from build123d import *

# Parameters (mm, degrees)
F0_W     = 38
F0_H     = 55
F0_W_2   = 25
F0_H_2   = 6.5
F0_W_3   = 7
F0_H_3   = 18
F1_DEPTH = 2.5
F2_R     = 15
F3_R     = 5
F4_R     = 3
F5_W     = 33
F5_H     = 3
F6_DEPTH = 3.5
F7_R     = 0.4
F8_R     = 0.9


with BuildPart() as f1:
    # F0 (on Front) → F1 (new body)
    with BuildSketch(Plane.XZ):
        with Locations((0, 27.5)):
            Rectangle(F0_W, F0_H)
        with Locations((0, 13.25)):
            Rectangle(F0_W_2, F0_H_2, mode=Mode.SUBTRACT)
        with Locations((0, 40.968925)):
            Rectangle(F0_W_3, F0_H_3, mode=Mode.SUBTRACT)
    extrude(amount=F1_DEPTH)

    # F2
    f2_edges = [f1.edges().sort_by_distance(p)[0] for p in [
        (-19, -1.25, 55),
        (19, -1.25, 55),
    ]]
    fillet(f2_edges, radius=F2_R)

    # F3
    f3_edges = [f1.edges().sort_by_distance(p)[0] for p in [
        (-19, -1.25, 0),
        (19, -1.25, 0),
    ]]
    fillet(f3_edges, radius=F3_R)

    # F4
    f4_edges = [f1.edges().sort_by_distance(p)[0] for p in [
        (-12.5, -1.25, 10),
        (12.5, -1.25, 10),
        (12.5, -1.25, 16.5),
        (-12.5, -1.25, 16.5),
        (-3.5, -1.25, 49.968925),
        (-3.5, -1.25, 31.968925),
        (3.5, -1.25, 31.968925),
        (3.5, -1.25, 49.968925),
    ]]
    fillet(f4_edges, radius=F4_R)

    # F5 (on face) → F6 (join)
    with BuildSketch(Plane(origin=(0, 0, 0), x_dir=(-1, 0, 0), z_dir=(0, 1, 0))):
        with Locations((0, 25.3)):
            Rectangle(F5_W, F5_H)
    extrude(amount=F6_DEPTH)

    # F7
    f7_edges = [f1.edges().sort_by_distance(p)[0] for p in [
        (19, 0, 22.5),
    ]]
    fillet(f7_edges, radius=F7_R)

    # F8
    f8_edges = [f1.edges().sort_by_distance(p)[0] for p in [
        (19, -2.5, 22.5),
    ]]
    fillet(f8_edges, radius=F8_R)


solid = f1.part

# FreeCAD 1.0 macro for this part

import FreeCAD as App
import Part
import Sketcher
from FreeCAD import Vector


def edges_at(feature, points):
    """Names of the edges that pass closest to the given points."""
    edges = feature.Shape.Edges
    near = lambda p: min(range(len(edges)), key=lambda i: edges[i].distToShape(Part.Vertex(*p))[0])
    return sorted({f"Edge{near(p) + 1}" for p in points})

doc = App.newDocument("Part")
params = doc.addObject("Spreadsheet::Sheet", "Params")
for row, (alias, value) in enumerate([
    ("sketch1_width", "38 mm"),
    ("sketch1_width2", "25 mm"),
    ("sketch1_width3", "7 mm"),
    ("sketch1_height", "55 mm"),
    ("sketch1_height2", "18 mm"),
    ("pad1_length", "2.5 mm"),
    ("fillet_radius", "15 mm"),
    ("fillet2_radius", "5 mm"),
    ("fillet3_radius", "3 mm"),
    ("sketch2_width", "33 mm"),
    ("sketch2_height", "3 mm"),
    ("pad2_length", "3.5 mm"),
    ("fillet4_radius", "0.4 mm"),
    ("fillet5_radius", "0.9 mm"),
], start=1):
    params.set(f"A{row}", alias)
    params.set(f"B{row}", "=" + value)
    params.setAlias(f"B{row}", alias)

body = doc.addObject("PartDesign::Body", "Body")

# Sketch on XZ plane
sketch1 = body.newObject("Sketcher::SketchObject", "Sketch")
sketch1.AttachmentSupport = (doc.getObject("XZ_Plane"), [""])
sketch1.MapMode = "FlatFace"
sketch1.addGeometry([
    Part.LineSegment(Vector(-19, 55, 0), Vector(-19, 0, 0)),  # 0
    Part.LineSegment(Vector(-19, 0, 0), Vector(19, 0, 0)),  # 1
    Part.LineSegment(Vector(19, 0, 0), Vector(19, 55, 0)),  # 2
    Part.LineSegment(Vector(19, 55, 0), Vector(-19, 55, 0)),  # 3
    Part.LineSegment(Vector(12, 10, 0), Vector(-12, 10, 0)),  # 4
    Part.LineSegment(Vector(-12, 10, 0), Vector(-12, 16, 0)),  # 5
    Part.LineSegment(Vector(-12, 16, 0), Vector(12, 16, 0)),  # 6
    Part.LineSegment(Vector(12, 16, 0), Vector(12, 10, 0)),  # 7
    Part.LineSegment(Vector(4, 32, 0), Vector(-4, 32, 0)),  # 8
    Part.LineSegment(Vector(-4, 32, 0), Vector(-4, 50, 0)),  # 9
    Part.LineSegment(Vector(-4, 50, 0), Vector(4, 50, 0)),  # 10
    Part.LineSegment(Vector(4, 50, 0), Vector(4, 32, 0)),  # 11
], False)
sketch1.addConstraint([
    Sketcher.Constraint("Coincident", 0, 2, 1, 1),
    Sketcher.Constraint("Coincident", 1, 2, 2, 1),
    Sketcher.Constraint("Coincident", 2, 2, 3, 1),
    Sketcher.Constraint("Coincident", 3, 2, 0, 1),
    Sketcher.Constraint("Coincident", 4, 2, 5, 1),
    Sketcher.Constraint("Coincident", 5, 2, 6, 1),
    Sketcher.Constraint("Coincident", 6, 2, 7, 1),
    Sketcher.Constraint("Coincident", 7, 2, 4, 1),
    Sketcher.Constraint("Coincident", 8, 2, 9, 1),
    Sketcher.Constraint("Coincident", 9, 2, 10, 1),
    Sketcher.Constraint("Coincident", 10, 2, 11, 1),
    Sketcher.Constraint("Coincident", 11, 2, 8, 1),
    Sketcher.Constraint("Vertical", 0),
    Sketcher.Constraint("Horizontal", 1),
    Sketcher.Constraint("Vertical", 2),
    Sketcher.Constraint("Horizontal", 3),
    Sketcher.Constraint("Horizontal", 4),
    Sketcher.Constraint("Vertical", 5),
    Sketcher.Constraint("Horizontal", 6),
    Sketcher.Constraint("Vertical", 7),
    Sketcher.Constraint("Horizontal", 8),
    Sketcher.Constraint("Vertical", 9),
    Sketcher.Constraint("Horizontal", 10),
    Sketcher.Constraint("Vertical", 11),
    Sketcher.Constraint("Symmetric", 0, 2, 1, 2, -1, 1),
    Sketcher.Constraint("DistanceX", 1, 1, 1, 2, 38.0),
    Sketcher.Constraint("DistanceX", 4, 2, 4, 1, 25.0),
    Sketcher.Constraint("DistanceX", 8, 2, 8, 1, 7.0),
    Sketcher.Constraint("DistanceY", 0, 2, 0, 1, 55.0),
    Sketcher.Constraint("DistanceY", 9, 1, 9, 2, 18.0),
    Sketcher.Constraint("DistanceY", 5, 1, 5, 2, 6.5),
    Sketcher.Constraint("DistanceY", -1, 1, 4, 2, 10.0),
    Sketcher.Constraint("DistanceX", 5, 2, 8, 2, 9.0),
    Sketcher.Constraint("DistanceX", 4, 2, -1, 1, 12.5),
    Sketcher.Constraint("DistanceY", -1, 1, 8, 2, 31.968925),
])
sketch1.setExpression("Constraints[25]", "Params.sketch1_width")
sketch1.setExpression("Constraints[26]", "Params.sketch1_width2")
sketch1.setExpression("Constraints[27]", "Params.sketch1_width3")
sketch1.setExpression("Constraints[28]", "Params.sketch1_height")
sketch1.setExpression("Constraints[29]", "Params.sketch1_height2")
pad1 = body.newObject("PartDesign::Pad", "Pad")
pad1.Profile = sketch1
pad1.setExpression("Length", "Params.pad1_length")
doc.recompute()

fillet = body.newObject("PartDesign::Fillet", "Fillet")
fillet.Base = (pad1, edges_at(pad1, [(-19, -1.25, 55), (19, -1.25, 55)]))
fillet.setExpression("Radius", "Params.fillet_radius")
doc.recompute()

fillet2 = body.newObject("PartDesign::Fillet", "Fillet001")
fillet2.Base = (fillet, edges_at(fillet, [(-19, -1.25, 0), (19, -1.25, 0)]))
fillet2.setExpression("Radius", "Params.fillet2_radius")
doc.recompute()

fillet3 = body.newObject("PartDesign::Fillet", "Fillet002")
fillet3.Base = (fillet2, edges_at(fillet2, [
    (-12.5, -1.25, 10),
    (12.5, -1.25, 10),
    (12.5, -1.25, 16.5),
    (-12.5, -1.25, 16.5),
    (-3.5, -1.25, 49.969),
    (-3.5, -1.25, 31.969),
    (3.5, -1.25, 31.969),
    (3.5, -1.25, 49.969),
]))
fillet3.setExpression("Radius", "Params.fillet3_radius")

# Sketch on XZ plane
sketch2 = body.newObject("Sketcher::SketchObject", "Sketch001")
sketch2.AttachmentSupport = (doc.getObject("XZ_Plane"), [""])
sketch2.MapMode = "FlatFace"
sketch2.addGeometry([
    Part.LineSegment(Vector(16.5, 26.8, 0), Vector(16.5, 23.8, 0)),
    Part.LineSegment(Vector(16.5, 23.8, 0), Vector(-16.5, 23.8, 0)),
    Part.LineSegment(Vector(-16.5, 23.8, 0), Vector(-16.5, 26.8, 0)),
    Part.LineSegment(Vector(-16.5, 26.8, 0), Vector(16.5, 26.8, 0)),
], False)
sketch2.addConstraint([
    Sketcher.Constraint("Coincident", 0, 2, 1, 1),
    Sketcher.Constraint("Coincident", 1, 2, 2, 1),
    Sketcher.Constraint("Coincident", 2, 2, 3, 1),
    Sketcher.Constraint("Coincident", 3, 2, 0, 1),
    Sketcher.Constraint("Vertical", 0),
    Sketcher.Constraint("Horizontal", 1),
    Sketcher.Constraint("Vertical", 2),
    Sketcher.Constraint("Horizontal", 3),
    Sketcher.Constraint("DistanceX", 1, 2, 1, 1, 33.0),
    Sketcher.Constraint("DistanceY", 0, 2, 0, 1, 3.0),
    Sketcher.Constraint("DistanceX", -1, 1, 0, 2, 16.5),
    Sketcher.Constraint("DistanceY", -1, 1, 0, 2, 23.8),
])
sketch2.setExpression("Constraints[8]", "Params.sketch2_width")
sketch2.setExpression("Constraints[9]", "Params.sketch2_height")
pad2 = body.newObject("PartDesign::Pad", "Pad001")
pad2.Profile = sketch2
pad2.setExpression("Length", "Params.pad2_length")
pad2.Reversed = True
doc.recompute()

fillet4 = body.newObject("PartDesign::Fillet", "Fillet003")
fillet4.Base = (pad2, edges_at(pad2, [(19, 0, 22.5)]))
fillet4.setExpression("Radius", "Params.fillet4_radius")
doc.recompute()

fillet5 = body.newObject("PartDesign::Fillet", "Fillet004")
fillet5.Base = (fillet4, edges_at(fillet4, [(19, -2.5, 22.5)]))
fillet5.setExpression("Radius", "Params.fillet5_radius")

doc.recompute()
